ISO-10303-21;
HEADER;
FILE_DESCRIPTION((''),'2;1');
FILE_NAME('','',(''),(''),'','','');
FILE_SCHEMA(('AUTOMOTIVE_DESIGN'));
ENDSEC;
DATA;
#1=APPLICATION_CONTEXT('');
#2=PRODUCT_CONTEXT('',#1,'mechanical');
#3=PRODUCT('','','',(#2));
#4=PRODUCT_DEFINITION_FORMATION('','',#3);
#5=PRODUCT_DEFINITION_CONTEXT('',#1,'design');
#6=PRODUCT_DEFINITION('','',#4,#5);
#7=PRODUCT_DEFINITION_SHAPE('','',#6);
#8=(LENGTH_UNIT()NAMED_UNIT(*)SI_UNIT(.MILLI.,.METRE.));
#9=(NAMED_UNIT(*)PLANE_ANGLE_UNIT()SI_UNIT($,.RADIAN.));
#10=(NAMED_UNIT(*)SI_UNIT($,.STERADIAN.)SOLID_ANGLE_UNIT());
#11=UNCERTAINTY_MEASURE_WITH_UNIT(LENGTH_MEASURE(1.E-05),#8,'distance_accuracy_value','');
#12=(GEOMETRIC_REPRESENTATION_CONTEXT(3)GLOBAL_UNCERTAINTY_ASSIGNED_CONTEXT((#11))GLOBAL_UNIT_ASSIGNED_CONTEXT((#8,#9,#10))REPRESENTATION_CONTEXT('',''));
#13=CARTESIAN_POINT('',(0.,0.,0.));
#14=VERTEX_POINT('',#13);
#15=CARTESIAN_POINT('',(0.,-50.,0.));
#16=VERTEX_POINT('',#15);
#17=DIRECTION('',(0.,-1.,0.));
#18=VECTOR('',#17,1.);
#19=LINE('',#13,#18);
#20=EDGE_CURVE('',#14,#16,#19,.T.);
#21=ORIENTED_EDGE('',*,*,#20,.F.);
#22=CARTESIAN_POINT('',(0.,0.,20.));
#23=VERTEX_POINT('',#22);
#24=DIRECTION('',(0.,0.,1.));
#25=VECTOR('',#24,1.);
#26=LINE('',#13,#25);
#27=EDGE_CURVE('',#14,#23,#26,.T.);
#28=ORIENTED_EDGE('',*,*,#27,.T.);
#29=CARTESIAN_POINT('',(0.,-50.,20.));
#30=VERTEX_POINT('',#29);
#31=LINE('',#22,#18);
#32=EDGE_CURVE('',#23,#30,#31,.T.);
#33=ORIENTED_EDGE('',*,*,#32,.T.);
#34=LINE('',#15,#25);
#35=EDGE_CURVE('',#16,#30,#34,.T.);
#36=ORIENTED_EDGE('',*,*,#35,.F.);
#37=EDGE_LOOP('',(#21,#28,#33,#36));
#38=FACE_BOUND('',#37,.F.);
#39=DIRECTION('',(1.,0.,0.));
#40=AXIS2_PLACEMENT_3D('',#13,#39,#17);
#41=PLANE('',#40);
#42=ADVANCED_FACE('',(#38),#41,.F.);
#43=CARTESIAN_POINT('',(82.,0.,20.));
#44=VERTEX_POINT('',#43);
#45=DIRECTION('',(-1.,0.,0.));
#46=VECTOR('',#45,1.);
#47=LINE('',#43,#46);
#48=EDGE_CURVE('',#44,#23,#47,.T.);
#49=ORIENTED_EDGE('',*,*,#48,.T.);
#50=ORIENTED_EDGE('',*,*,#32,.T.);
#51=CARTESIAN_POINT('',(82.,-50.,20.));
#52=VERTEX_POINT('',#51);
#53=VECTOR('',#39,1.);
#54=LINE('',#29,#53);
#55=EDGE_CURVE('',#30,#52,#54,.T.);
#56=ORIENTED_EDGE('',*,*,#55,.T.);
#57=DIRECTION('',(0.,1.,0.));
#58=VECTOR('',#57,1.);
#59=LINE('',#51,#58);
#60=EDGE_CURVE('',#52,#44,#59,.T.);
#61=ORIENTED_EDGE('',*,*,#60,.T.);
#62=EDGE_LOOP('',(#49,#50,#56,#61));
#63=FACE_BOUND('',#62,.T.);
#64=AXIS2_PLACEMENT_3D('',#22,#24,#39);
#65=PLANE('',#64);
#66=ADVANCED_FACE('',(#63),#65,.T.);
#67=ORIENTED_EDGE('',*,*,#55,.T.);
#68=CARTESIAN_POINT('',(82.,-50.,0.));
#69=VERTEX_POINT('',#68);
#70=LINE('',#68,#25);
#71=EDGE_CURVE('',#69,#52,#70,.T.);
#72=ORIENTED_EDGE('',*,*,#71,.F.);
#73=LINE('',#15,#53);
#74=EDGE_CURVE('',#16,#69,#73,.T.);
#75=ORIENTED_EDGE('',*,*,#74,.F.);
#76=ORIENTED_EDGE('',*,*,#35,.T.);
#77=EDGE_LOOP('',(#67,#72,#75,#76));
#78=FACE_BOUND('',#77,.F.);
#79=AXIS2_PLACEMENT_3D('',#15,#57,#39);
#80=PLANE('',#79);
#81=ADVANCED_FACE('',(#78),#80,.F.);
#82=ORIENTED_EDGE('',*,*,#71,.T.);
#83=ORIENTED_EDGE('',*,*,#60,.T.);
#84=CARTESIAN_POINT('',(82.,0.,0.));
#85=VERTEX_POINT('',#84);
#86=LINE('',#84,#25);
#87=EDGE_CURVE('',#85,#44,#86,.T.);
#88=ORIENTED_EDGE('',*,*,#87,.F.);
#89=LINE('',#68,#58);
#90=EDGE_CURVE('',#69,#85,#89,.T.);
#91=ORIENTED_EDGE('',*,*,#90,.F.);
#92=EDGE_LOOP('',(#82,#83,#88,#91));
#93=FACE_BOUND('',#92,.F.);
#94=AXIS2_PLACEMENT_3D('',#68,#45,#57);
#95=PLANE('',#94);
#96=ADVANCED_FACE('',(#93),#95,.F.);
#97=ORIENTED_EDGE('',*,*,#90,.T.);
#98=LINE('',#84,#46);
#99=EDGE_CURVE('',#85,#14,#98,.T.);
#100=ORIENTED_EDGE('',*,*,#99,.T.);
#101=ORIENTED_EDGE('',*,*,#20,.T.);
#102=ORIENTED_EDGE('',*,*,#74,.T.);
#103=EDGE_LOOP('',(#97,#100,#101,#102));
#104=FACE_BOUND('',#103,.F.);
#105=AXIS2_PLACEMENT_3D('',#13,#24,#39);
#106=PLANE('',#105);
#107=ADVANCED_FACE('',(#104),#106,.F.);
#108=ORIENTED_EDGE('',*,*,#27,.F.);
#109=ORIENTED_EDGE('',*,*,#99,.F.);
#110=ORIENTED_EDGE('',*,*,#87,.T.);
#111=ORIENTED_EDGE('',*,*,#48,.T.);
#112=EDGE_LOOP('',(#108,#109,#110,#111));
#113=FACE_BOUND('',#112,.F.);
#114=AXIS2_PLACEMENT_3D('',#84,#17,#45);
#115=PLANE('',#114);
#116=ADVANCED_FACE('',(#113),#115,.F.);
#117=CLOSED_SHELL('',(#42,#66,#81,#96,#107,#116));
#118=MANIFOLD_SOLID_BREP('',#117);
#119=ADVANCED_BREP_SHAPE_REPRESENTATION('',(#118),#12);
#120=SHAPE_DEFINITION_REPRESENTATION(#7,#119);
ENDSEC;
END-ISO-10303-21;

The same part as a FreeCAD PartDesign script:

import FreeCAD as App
import Part
import Sketcher
from FreeCAD import Vector
Q = App.Units.Quantity


def add_polygon(sketch, points):
    """Adds a closed chain of lines whose ends are joined by coincident constraints."""
    first, n = sketch.GeometryCount, len(points)
    for a, b in zip(points, points[1:] + points[:1]):
        sketch.addGeometry(Part.LineSegment(App.Vector(*a, 0), App.Vector(*b, 0)), False)
    for i in range(n):
        sketch.addConstraint(Sketcher.Constraint("Coincident", first + i, 2, first + (i + 1) % n, 1))

doc = App.newDocument("Part")
body = doc.addObject("PartDesign::Body", "Body")

sketch1 = body.newObject("Sketcher::SketchObject", "Sketch")
sketch1.AttachmentSupport = (doc.getObject("XY_Plane"), [""])
sketch1.MapMode = "FlatFace"
add_polygon(sketch1, [(82, 0), (0, 0), (0, -50), (82, -50)])
sketch1.addConstraint([
    Sketcher.Constraint("Horizontal", 0),
    Sketcher.Constraint("Vertical", 1),
    Sketcher.Constraint("Horizontal", 2),
    Sketcher.Constraint("Vertical", 3),
    Sketcher.Constraint("Coincident", 0, 2, -1, 1),
    Sketcher.Constraint("DistanceX", 0, 2, 0, 1, Q("82 mm")),
    Sketcher.Constraint("DistanceY", 1, 2, 1, 1, Q("50 mm")),
])
pad1 = body.newObject("PartDesign::Pad", "Pad")
pad1.Profile = sketch1
pad1.Length = 20

doc.recompute()
